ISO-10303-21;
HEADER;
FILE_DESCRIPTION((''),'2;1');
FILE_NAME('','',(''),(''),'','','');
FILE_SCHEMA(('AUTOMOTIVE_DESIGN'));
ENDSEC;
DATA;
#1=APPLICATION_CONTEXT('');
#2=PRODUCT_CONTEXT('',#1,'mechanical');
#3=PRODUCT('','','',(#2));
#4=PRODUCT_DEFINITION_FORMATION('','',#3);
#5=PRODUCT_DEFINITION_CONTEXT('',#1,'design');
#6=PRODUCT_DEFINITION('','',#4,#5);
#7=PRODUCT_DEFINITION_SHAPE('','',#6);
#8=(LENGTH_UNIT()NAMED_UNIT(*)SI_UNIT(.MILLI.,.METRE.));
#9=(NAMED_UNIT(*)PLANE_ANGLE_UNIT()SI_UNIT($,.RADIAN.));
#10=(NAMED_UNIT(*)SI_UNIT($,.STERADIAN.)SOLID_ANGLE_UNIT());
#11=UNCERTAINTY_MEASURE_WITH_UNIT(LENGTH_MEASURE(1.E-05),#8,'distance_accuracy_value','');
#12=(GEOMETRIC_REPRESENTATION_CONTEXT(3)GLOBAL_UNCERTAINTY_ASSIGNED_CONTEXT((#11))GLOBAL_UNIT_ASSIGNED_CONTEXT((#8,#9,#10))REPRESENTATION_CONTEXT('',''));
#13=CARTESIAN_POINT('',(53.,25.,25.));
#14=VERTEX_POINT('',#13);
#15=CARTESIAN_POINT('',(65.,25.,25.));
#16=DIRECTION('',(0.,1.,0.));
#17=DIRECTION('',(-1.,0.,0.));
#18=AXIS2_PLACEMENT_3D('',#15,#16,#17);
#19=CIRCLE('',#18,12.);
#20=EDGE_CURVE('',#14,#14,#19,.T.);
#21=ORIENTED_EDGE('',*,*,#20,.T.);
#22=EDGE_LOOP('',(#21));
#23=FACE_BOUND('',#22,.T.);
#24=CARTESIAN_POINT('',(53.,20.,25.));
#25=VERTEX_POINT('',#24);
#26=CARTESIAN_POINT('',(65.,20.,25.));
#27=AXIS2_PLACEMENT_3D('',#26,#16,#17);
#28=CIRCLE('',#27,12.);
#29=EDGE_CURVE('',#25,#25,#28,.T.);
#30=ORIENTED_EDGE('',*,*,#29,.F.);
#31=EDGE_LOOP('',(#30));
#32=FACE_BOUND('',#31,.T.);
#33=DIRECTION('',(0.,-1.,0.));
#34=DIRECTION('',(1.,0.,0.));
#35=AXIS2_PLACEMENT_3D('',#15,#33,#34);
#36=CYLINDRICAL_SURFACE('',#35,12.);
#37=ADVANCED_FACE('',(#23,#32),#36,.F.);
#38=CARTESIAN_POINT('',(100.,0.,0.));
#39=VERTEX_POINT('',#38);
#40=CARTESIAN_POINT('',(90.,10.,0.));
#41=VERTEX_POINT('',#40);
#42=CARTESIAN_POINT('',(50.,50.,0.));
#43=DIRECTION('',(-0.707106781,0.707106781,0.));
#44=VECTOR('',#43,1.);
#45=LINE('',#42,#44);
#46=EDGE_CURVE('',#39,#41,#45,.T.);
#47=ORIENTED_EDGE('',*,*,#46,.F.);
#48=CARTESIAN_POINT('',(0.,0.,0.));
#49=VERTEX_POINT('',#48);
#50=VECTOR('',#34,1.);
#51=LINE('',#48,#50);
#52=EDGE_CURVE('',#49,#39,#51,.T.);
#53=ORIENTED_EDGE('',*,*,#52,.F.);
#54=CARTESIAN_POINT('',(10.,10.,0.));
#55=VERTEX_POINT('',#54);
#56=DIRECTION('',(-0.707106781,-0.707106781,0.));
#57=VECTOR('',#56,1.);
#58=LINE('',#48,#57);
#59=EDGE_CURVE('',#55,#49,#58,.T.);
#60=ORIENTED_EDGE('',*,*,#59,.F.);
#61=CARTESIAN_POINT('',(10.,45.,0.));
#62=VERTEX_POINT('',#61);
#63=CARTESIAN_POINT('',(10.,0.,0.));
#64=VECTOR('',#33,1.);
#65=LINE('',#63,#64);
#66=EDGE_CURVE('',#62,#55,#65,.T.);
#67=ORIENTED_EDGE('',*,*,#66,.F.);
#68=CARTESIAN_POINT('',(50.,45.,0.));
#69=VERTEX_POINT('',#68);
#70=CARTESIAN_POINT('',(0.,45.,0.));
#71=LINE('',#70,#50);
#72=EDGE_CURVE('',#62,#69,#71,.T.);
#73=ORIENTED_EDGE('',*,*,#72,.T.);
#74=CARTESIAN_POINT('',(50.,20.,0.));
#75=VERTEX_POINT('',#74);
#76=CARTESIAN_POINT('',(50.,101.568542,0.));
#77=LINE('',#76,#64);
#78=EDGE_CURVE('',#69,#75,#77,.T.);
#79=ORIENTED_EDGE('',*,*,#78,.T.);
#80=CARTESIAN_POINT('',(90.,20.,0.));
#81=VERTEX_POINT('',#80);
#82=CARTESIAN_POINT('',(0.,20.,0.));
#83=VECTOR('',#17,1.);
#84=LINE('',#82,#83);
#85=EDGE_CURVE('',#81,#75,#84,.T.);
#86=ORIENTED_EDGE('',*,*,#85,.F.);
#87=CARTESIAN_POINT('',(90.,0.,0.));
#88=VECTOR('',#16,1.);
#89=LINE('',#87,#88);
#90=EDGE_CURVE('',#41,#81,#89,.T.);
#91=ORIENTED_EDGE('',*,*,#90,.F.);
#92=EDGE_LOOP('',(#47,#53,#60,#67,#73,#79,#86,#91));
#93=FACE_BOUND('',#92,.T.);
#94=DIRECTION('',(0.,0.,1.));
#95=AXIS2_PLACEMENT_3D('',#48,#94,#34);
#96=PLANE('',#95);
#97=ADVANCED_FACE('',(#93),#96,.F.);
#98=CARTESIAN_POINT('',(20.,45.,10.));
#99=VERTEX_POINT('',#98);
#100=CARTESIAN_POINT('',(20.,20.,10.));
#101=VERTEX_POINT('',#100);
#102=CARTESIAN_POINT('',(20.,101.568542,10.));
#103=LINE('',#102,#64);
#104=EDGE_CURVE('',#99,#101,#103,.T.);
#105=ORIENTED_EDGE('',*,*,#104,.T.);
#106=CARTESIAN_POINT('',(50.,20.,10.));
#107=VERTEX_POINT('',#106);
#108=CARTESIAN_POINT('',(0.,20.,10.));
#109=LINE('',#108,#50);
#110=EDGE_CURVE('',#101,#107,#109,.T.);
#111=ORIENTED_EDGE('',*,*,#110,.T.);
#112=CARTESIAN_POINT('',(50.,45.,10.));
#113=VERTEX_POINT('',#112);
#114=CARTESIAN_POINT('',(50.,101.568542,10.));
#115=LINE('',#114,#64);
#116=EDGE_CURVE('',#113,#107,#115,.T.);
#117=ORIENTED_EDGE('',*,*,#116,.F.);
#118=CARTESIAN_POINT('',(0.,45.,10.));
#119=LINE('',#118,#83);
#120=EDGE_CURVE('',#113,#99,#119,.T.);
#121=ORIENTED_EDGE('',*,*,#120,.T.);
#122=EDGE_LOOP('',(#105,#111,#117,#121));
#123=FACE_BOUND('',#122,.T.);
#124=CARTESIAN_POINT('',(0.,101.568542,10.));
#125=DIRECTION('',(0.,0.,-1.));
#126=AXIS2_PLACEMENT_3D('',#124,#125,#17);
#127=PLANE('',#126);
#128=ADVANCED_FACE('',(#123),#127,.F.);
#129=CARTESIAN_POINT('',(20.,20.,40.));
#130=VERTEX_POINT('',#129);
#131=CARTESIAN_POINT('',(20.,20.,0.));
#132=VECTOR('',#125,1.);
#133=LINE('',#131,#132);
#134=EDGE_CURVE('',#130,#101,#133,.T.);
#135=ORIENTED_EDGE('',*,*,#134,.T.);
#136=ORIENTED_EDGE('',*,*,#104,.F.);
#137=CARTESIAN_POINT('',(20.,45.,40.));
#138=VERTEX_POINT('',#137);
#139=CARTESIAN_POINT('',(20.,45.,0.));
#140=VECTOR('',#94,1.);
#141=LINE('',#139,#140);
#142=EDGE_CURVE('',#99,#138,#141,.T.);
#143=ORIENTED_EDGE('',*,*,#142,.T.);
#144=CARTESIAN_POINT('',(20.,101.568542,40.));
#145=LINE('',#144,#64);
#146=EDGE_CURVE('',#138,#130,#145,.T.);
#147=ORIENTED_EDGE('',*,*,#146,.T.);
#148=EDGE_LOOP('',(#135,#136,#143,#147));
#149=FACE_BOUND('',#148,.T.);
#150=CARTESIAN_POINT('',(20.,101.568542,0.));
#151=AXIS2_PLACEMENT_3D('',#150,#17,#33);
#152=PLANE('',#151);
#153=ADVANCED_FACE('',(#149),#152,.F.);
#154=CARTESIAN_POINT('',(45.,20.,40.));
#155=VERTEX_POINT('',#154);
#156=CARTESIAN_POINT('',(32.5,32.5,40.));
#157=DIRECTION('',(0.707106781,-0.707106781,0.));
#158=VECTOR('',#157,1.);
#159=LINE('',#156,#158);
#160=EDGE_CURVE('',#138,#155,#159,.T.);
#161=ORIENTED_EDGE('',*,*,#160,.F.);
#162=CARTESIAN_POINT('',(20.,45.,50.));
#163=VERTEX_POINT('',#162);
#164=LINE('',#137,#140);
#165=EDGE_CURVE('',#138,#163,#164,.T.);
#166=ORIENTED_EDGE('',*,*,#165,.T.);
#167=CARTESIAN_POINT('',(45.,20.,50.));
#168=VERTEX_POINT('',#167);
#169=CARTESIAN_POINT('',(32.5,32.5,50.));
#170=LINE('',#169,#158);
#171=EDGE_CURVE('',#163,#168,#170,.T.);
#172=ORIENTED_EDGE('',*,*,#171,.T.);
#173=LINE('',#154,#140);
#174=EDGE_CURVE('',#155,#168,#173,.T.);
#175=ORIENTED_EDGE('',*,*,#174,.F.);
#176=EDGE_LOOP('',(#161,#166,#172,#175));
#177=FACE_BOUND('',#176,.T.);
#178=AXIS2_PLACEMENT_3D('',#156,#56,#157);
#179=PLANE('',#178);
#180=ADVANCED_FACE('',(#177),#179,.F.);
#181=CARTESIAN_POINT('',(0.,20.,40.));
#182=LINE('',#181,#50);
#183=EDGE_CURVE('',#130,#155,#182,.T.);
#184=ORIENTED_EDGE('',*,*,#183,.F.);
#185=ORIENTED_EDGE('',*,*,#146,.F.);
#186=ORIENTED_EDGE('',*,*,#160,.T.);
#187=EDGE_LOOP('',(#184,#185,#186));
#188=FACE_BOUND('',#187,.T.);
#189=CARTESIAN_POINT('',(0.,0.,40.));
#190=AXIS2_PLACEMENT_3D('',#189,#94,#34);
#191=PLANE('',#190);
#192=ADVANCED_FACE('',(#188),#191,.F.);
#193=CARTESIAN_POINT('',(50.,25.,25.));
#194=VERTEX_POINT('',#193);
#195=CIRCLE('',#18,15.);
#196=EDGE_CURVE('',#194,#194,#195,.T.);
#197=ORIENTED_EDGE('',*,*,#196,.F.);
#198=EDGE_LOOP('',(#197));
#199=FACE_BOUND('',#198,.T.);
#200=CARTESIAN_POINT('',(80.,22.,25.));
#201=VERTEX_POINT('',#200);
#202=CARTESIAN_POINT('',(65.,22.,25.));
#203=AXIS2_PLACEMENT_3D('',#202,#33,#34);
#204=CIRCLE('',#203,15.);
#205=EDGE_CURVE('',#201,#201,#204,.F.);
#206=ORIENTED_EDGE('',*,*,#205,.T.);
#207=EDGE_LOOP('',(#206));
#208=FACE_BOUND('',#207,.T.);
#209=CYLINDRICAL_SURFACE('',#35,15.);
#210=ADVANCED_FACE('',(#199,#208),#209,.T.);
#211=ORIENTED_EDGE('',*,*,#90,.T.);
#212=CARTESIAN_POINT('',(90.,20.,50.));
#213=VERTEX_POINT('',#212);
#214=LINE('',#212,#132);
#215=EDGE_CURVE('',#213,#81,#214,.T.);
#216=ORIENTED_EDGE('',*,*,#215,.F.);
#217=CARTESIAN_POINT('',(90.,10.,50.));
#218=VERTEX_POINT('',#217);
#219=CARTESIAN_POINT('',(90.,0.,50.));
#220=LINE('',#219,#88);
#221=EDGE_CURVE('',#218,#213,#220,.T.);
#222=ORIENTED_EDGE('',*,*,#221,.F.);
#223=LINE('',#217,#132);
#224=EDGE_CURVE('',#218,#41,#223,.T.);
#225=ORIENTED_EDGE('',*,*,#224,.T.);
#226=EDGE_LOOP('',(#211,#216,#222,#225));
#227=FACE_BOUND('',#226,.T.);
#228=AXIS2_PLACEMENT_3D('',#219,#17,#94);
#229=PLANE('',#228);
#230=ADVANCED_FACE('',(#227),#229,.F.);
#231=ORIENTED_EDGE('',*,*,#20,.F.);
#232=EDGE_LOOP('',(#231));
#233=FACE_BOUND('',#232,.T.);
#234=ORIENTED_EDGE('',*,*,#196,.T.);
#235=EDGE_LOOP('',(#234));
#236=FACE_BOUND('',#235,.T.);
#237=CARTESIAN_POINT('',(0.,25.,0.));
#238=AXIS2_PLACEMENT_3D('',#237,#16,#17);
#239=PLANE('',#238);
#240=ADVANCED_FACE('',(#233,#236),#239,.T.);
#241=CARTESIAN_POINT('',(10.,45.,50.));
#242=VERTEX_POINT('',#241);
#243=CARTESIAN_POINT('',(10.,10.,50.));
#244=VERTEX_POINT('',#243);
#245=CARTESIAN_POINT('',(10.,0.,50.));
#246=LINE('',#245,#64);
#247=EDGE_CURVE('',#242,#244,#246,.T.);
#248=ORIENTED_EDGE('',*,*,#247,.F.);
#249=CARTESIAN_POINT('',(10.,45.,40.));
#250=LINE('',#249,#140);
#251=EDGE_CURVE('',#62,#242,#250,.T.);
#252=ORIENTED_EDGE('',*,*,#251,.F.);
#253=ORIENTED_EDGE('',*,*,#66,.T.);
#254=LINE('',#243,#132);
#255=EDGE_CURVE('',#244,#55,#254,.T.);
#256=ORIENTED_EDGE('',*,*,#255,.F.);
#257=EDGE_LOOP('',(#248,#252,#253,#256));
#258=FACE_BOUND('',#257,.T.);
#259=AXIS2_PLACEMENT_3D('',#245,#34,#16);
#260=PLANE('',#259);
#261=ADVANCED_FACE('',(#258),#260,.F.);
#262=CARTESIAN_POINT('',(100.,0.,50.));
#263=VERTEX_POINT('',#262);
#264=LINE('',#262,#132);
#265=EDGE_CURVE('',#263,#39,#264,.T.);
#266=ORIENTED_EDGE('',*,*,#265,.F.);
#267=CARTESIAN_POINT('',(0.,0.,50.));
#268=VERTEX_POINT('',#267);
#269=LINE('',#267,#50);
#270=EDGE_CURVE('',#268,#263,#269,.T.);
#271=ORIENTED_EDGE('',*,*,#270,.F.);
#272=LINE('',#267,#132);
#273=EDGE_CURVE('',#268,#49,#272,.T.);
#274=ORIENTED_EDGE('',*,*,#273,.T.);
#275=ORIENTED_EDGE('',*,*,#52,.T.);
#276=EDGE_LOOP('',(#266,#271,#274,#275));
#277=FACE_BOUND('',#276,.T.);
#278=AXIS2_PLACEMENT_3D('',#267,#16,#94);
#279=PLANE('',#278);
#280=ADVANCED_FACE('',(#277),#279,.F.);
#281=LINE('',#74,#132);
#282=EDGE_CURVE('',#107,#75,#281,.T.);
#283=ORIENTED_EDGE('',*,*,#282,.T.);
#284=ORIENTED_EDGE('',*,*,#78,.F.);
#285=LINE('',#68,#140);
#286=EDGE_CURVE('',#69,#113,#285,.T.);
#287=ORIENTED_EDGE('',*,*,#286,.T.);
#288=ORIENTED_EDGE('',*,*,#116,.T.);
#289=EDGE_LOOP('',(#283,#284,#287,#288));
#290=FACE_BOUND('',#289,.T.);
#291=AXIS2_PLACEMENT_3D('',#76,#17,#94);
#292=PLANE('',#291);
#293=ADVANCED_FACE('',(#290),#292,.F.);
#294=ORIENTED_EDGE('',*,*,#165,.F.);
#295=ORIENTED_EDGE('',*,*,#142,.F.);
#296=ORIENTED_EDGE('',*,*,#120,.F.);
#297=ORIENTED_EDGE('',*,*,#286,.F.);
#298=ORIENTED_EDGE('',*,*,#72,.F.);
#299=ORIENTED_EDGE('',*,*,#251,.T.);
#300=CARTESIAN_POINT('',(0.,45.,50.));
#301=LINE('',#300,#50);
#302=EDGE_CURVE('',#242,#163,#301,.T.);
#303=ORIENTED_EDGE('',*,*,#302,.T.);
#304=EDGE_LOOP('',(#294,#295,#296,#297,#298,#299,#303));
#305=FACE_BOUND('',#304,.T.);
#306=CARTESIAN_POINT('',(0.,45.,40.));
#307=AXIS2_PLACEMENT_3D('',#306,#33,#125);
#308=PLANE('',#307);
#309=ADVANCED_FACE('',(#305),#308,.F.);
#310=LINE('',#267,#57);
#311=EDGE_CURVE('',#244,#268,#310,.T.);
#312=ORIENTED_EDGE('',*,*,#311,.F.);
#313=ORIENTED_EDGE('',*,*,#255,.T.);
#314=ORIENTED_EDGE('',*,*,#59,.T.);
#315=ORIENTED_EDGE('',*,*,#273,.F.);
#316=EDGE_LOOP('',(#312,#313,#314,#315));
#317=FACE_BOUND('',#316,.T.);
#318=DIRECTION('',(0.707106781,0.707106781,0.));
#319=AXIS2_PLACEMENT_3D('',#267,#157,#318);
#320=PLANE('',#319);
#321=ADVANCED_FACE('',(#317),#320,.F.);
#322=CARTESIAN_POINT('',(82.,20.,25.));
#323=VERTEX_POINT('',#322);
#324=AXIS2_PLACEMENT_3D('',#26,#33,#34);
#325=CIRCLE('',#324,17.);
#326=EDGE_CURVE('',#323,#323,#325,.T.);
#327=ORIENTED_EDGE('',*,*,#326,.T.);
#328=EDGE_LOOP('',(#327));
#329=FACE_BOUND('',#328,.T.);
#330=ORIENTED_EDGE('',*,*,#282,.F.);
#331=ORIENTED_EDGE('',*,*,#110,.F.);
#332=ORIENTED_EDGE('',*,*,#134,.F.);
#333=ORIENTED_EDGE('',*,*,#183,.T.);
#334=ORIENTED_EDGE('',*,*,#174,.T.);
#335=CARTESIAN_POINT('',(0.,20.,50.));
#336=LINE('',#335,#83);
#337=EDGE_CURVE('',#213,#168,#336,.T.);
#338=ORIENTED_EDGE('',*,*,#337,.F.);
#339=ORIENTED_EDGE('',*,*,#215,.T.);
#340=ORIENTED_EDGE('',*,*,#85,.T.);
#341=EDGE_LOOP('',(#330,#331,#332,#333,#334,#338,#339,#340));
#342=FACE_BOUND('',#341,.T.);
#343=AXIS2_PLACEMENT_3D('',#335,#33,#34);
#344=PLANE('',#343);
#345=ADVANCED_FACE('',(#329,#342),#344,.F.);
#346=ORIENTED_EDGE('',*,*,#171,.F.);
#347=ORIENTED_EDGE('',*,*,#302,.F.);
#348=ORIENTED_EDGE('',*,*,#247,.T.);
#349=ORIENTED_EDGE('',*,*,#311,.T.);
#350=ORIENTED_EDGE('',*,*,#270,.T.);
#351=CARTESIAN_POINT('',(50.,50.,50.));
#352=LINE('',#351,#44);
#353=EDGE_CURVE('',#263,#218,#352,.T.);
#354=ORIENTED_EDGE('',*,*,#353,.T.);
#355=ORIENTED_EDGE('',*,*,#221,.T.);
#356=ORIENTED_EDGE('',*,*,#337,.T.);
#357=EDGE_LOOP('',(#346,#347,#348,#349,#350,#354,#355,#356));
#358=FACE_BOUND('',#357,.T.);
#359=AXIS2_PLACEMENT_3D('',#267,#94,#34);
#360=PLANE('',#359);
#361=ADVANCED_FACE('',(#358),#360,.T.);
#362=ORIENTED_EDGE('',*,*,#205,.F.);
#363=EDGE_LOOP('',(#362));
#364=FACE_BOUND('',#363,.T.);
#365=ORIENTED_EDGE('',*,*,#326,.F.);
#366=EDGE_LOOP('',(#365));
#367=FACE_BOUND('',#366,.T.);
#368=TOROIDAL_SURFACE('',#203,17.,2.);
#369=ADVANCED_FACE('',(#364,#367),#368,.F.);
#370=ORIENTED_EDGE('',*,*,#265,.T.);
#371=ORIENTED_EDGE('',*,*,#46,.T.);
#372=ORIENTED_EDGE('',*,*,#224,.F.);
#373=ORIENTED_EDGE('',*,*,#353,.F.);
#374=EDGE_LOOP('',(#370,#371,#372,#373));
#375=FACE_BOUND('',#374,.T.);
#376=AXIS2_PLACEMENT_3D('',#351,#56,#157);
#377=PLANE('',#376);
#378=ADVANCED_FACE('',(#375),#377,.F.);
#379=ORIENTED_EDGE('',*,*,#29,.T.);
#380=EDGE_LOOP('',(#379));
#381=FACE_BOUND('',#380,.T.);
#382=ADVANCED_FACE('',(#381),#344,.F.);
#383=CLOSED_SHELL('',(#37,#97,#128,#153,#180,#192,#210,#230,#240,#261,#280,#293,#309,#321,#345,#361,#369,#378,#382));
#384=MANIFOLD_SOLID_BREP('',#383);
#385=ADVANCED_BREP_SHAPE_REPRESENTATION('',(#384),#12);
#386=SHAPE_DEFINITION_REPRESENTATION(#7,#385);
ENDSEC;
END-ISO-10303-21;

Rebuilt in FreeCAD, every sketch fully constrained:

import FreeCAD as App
import Part
import Sketcher


def edges_at(feature, points):
    """Names of the edges that pass closest to the given points."""
    edges = feature.Shape.Edges
    near = lambda p: min(range(len(edges)), key=lambda i: edges[i].distToShape(Part.Vertex(*p))[0])
    return sorted({f"Edge{near(p) + 1}" for p in points})

doc = App.newDocument("Part")
body = doc.addObject("PartDesign::Body", "Body")

# Sketch on XY plane
sketch1 = body.newObject("Sketcher::SketchObject", "Sketch")
sketch1.AttachmentSupport = (doc.getObject("XY_Plane"), [""])
sketch1.MapMode = "FlatFace"
sketch1.addGeometry(Part.LineSegment(App.Vector(10, 10, 0), App.Vector(0, 0, 0)), False)
sketch1.addGeometry(Part.LineSegment(App.Vector(0, 0, 0), App.Vector(100, 0, 0)), False)
sketch1.addGeometry(Part.LineSegment(App.Vector(100, 0, 0), App.Vector(90, 10, 0)), False)
sketch1.addGeometry(Part.LineSegment(App.Vector(90, 10, 0), App.Vector(90, 20, 0)), False)
sketch1.addGeometry(Part.LineSegment(App.Vector(90, 20, 0), App.Vector(10, 20, 0)), False)
sketch1.addGeometry(Part.LineSegment(App.Vector(10, 20, 0), App.Vector(10, 10, 0)), False)
sketch1.addConstraint(Sketcher.Constraint("Coincident", 0, 2, 1, 1))
sketch1.addConstraint(Sketcher.Constraint("Coincident", 1, 2, 2, 1))
sketch1.addConstraint(Sketcher.Constraint("Coincident", 2, 2, 3, 1))
sketch1.addConstraint(Sketcher.Constraint("Coincident", 3, 2, 4, 1))
sketch1.addConstraint(Sketcher.Constraint("Coincident", 4, 2, 5, 1))
sketch1.addConstraint(Sketcher.Constraint("Coincident", 5, 2, 0, 1))
sketch1.addConstraint(Sketcher.Constraint("Horizontal", 1))
sketch1.addConstraint(Sketcher.Constraint("Vertical", 3))
sketch1.addConstraint(Sketcher.Constraint("Horizontal", 4))
sketch1.addConstraint(Sketcher.Constraint("Vertical", 5))
sketch1.addConstraint(Sketcher.Constraint("Coincident", 0, 2, -1, 1))
sketch1.addConstraint(Sketcher.Constraint("Perpendicular", 0, 2))
sketch1.addConstraint(Sketcher.Constraint("Horizontal", 2, 2, 5, 2))
sketch1.addConstraint(Sketcher.Constraint("Equal", 0, 2))
sketch1.addConstraint(Sketcher.Constraint("DistanceX", 1, 1, 1, 2, 100.0))
sketch1.addConstraint(Sketcher.Constraint("DistanceX", 4, 2, 4, 1, 80.0))
sketch1.addConstraint(Sketcher.Constraint("DistanceY", 3, 1, 3, 2, 10.0))
pad1 = body.newObject("PartDesign::Pad", "Pad")
pad1.Profile = sketch1
pad1.Length = 50

# Sketch on XY plane
sketch2 = body.newObject("Sketcher::SketchObject", "Sketch001")
sketch2.AttachmentSupport = (doc.getObject("XY_Plane"), [""])
sketch2.MapMode = "FlatFace"
sketch2.AttachmentOffset = App.Placement(App.Vector(0, 0, 50), App.Rotation())
sketch2.addGeometry(Part.LineSegment(App.Vector(10, 45, 0), App.Vector(10, 20, 0)), False)
sketch2.addGeometry(Part.LineSegment(App.Vector(10, 20, 0), App.Vector(45, 20, 0)), False)
sketch2.addGeometry(Part.LineSegment(App.Vector(45, 20, 0), App.Vector(20, 45, 0)), False)
sketch2.addGeometry(Part.LineSegment(App.Vector(20, 45, 0), App.Vector(10, 45, 0)), False)
sketch2.addConstraint(Sketcher.Constraint("Coincident", 0, 2, 1, 1))
sketch2.addConstraint(Sketcher.Constraint("Coincident", 1, 2, 2, 1))
sketch2.addConstraint(Sketcher.Constraint("Coincident", 2, 2, 3, 1))
sketch2.addConstraint(Sketcher.Constraint("Coincident", 3, 2, 0, 1))
sketch2.addConstraint(Sketcher.Constraint("Vertical", 0))
sketch2.addConstraint(Sketcher.Constraint("Horizontal", 1))
sketch2.addConstraint(Sketcher.Constraint("Horizontal", 3))
sketch2.addConstraint(Sketcher.Constraint("DistanceX", 1, 1, 1, 2, 35.0))
sketch2.addConstraint(Sketcher.Constraint("DistanceX", 3, 2, 3, 1, 10.0))
sketch2.addConstraint(Sketcher.Constraint("DistanceY", 0, 2, 0, 1, 25.0))
sketch2.addConstraint(Sketcher.Constraint("DistanceX", -1, 1, 0, 2, 10.0))
sketch2.addConstraint(Sketcher.Constraint("DistanceY", -1, 1, 0, 2, 20.0))
pad2 = body.newObject("PartDesign::Pad", "Pad001")
pad2.Profile = sketch2
pad2.Length = 10
pad2.Reversed = True

# Sketch on XZ plane
sketch3 = body.newObject("Sketcher::SketchObject", "Sketch002")
sketch3.AttachmentSupport = (doc.getObject("XZ_Plane"), [""])
sketch3.MapMode = "FlatFace"
sketch3.AttachmentOffset = App.Placement(App.Vector(0, 0, -20), App.Rotation())
sketch3.addGeometry(Part.Circle(App.Vector(65, 25, 0), App.Vector(0, 0, 1), 15), False)
sketch3.addGeometry(Part.Circle(App.Vector(65, 25, 0), App.Vector(0, 0, 1), 12), False)
sketch3.addConstraint(Sketcher.Constraint("Coincident", 1, 3, 0, 3))
sketch3.addConstraint(Sketcher.Constraint("Diameter", 0, 30.0))
sketch3.addConstraint(Sketcher.Constraint("Diameter", 1, 24.0))
sketch3.addConstraint(Sketcher.Constraint("DistanceX", -1, 1, 0, 3, 65.0))
sketch3.addConstraint(Sketcher.Constraint("DistanceY", -1, 1, 0, 3, 25.0))
pad3 = body.newObject("PartDesign::Pad", "Pad002")
pad3.Profile = sketch3
pad3.Length = 5
pad3.Reversed = True

# Sketch on XZ plane
sketch4 = body.newObject("Sketcher::SketchObject", "Sketch003")
sketch4.AttachmentSupport = (doc.getObject("XZ_Plane"), [""])
sketch4.MapMode = "FlatFace"
sketch4.AttachmentOffset = App.Placement(App.Vector(0, 0, -20), App.Rotation())
sketch4.addGeometry(Part.LineSegment(App.Vector(10, 40, 0), App.Vector(20, 40, 0)), False)
sketch4.addGeometry(Part.LineSegment(App.Vector(20, 40, 0), App.Vector(20, 10, 0)), False)
sketch4.addGeometry(Part.LineSegment(App.Vector(20, 10, 0), App.Vector(50, 10, 0)), False)
sketch4.addGeometry(Part.LineSegment(App.Vector(50, 10, 0), App.Vector(50, 0, 0)), False)
sketch4.addGeometry(Part.LineSegment(App.Vector(50, 0, 0), App.Vector(10, 0, 0)), False)
sketch4.addGeometry(Part.LineSegment(App.Vector(10, 0, 0), App.Vector(10, 40, 0)), False)
sketch4.addConstraint(Sketcher.Constraint("Coincident", 0, 2, 1, 1))
sketch4.addConstraint(Sketcher.Constraint("Coincident", 1, 2, 2, 1))
sketch4.addConstraint(Sketcher.Constraint("Coincident", 2, 2, 3, 1))
sketch4.addConstraint(Sketcher.Constraint("Coincident", 3, 2, 4, 1))
sketch4.addConstraint(Sketcher.Constraint("Coincident", 4, 2, 5, 1))
sketch4.addConstraint(Sketcher.Constraint("Coincident", 5, 2, 0, 1))
sketch4.addConstraint(Sketcher.Constraint("Horizontal", 0))
sketch4.addConstraint(Sketcher.Constraint("Vertical", 1))
sketch4.addConstraint(Sketcher.Constraint("Horizontal", 2))
sketch4.addConstraint(Sketcher.Constraint("Vertical", 3))
sketch4.addConstraint(Sketcher.Constraint("Horizontal", 4))
sketch4.addConstraint(Sketcher.Constraint("Vertical", 5))
sketch4.addConstraint(Sketcher.Constraint("PointOnObject", 3, 2, -1))
sketch4.addConstraint(Sketcher.Constraint("Equal", 2, 1))
sketch4.addConstraint(Sketcher.Constraint("Equal", 0, 3))
sketch4.addConstraint(Sketcher.Constraint("DistanceX", 0, 1, 0, 2, 10.0))
sketch4.addConstraint(Sketcher.Constraint("DistanceX", 2, 1, 2, 2, 30.0))
sketch4.addConstraint(Sketcher.Constraint("DistanceX", -1, 1, 0, 2, 20.0))
pad4 = body.newObject("PartDesign::Pad", "Pad003")
pad4.Profile = sketch4
pad4.Length = 25
pad4.Reversed = True
doc.recompute()

fillet = body.newObject("PartDesign::Fillet", "Fillet")
fillet.Base = (pad4, edges_at(pad4, [(50, 20, 25)]))
fillet.Radius = 2

doc.recompute()
